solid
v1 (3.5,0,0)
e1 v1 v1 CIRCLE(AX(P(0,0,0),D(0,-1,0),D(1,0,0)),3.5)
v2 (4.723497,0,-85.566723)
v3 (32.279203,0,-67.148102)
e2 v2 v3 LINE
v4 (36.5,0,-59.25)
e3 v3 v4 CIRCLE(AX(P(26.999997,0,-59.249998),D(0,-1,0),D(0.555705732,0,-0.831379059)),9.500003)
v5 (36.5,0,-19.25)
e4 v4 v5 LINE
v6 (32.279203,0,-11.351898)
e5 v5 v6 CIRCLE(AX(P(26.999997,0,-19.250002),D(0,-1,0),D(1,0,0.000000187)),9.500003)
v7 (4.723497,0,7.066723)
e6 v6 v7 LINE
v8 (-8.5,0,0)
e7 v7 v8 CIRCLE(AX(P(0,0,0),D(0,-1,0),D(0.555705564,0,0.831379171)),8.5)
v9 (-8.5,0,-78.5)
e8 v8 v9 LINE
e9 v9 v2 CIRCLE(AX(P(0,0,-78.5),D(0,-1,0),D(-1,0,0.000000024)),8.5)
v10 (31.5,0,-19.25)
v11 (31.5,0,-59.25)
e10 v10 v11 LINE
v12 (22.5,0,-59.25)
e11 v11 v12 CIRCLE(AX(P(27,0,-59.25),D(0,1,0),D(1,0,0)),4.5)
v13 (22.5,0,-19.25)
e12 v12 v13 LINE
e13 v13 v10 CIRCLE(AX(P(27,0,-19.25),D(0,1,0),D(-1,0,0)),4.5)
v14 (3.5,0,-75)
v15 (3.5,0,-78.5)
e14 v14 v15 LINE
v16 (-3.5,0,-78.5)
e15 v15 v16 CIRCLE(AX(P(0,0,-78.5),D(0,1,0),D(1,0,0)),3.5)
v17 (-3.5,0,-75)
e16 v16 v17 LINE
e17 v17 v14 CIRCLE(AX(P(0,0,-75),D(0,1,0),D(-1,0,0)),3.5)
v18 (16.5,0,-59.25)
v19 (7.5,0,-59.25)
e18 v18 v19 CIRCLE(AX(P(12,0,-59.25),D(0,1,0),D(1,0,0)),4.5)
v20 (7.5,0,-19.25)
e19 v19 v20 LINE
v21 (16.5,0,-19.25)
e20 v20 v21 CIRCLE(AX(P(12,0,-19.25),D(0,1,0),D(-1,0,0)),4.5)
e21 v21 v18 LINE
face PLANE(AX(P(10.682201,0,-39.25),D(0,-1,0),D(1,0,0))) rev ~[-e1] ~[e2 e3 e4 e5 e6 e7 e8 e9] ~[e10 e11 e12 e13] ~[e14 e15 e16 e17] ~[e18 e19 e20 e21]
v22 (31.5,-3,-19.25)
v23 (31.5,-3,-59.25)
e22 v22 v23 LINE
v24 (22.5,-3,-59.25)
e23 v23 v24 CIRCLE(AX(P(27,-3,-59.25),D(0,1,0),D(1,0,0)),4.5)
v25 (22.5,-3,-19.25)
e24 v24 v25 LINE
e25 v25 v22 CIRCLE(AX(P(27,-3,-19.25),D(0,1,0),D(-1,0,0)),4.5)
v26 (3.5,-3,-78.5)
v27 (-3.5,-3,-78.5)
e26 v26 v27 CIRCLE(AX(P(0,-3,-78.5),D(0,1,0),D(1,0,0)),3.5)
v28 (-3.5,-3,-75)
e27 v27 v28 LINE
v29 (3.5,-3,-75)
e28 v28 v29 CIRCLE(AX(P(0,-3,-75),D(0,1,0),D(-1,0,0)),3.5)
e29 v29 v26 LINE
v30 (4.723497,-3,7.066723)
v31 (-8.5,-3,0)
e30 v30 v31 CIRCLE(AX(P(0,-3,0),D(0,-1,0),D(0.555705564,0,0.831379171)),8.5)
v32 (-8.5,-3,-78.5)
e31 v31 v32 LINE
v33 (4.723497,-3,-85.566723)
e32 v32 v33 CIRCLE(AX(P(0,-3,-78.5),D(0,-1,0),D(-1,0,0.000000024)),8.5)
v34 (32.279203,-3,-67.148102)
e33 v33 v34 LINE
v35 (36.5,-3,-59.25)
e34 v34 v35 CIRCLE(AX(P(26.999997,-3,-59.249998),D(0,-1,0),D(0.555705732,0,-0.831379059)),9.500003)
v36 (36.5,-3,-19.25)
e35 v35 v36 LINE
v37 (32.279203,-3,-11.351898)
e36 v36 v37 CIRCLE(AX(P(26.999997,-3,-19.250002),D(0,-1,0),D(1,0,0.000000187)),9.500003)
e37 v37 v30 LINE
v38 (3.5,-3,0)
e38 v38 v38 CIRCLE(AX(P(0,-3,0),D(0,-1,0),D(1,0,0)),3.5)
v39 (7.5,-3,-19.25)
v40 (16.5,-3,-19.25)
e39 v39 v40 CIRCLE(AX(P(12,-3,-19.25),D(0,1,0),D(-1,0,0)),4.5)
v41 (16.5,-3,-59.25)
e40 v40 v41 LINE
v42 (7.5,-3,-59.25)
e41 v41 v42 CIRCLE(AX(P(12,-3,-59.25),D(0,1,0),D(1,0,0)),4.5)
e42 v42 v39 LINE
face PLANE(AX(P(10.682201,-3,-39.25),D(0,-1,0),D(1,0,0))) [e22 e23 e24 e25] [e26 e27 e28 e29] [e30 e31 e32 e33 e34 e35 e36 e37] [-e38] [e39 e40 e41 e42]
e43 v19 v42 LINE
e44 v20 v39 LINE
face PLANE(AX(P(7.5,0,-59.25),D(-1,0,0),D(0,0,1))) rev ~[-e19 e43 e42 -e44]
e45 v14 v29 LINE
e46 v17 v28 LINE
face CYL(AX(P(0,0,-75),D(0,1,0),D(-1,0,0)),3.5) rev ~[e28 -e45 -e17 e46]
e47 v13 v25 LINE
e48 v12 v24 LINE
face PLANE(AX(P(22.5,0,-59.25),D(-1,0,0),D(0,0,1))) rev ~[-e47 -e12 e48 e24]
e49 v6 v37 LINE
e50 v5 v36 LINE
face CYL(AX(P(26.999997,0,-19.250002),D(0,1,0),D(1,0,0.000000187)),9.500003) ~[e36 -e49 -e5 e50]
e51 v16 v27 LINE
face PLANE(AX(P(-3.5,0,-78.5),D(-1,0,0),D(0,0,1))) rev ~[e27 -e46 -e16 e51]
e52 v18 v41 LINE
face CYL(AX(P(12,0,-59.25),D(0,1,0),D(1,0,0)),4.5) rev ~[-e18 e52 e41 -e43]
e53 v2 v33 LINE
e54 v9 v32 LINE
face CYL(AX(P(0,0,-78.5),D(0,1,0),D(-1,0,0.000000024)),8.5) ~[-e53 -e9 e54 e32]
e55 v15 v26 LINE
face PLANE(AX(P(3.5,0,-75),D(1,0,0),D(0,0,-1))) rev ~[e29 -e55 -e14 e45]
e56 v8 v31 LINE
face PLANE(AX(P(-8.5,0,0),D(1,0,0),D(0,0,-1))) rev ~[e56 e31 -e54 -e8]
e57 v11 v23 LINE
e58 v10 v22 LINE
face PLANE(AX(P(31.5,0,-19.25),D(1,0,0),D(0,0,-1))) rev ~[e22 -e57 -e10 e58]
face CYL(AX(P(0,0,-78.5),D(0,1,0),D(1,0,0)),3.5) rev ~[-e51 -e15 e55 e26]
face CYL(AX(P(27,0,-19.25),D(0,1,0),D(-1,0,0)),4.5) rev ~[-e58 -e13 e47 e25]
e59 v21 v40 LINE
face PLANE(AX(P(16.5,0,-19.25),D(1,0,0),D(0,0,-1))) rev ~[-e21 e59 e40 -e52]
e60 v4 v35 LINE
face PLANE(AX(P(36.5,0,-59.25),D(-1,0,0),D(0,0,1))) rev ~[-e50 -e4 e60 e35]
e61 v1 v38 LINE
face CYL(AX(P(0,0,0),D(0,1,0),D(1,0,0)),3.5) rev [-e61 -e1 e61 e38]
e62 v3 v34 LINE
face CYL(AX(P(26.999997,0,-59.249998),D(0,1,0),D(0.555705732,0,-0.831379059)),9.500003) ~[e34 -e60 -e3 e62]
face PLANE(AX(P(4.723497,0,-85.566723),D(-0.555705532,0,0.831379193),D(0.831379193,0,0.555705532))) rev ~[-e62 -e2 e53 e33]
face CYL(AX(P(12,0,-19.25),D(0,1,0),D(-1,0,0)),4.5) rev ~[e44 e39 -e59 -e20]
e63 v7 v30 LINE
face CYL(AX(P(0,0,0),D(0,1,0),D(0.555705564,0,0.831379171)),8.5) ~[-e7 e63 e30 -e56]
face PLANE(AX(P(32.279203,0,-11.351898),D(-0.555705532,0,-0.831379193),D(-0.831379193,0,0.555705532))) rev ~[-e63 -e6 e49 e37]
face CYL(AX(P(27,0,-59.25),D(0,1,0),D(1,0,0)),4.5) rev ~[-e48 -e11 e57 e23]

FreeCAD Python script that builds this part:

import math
import FreeCAD as App
import Part
import Sketcher
Q = App.Units.Quantity

doc = App.newDocument("Part")
body = doc.addObject("PartDesign::Body", "Body")

# Sketch on XZ plane
sketch1 = body.newObject("Sketcher::SketchObject", "Sketch")
sketch1.AttachmentSupport = (doc.getObject("XZ_Plane"), [""])
sketch1.MapMode = "FlatFace"
sketch1.addGeometry(Part.LineSegment(App.Vector(32.279203, -11.351898, 0), App.Vector(4.723497, 7.066723, 0)), False)
sketch1.addGeometry(Part.ArcOfCircle(Part.Circle(App.Vector(0, 0, 0), App.Vector(0, 0, 1), 8.5), math.radians(56.240674), math.radians(180.000001)), False)
sketch1.addGeometry(Part.LineSegment(App.Vector(-8.5, 0, 0), App.Vector(-8.5, -78.5, 0)), False)
sketch1.addGeometry(Part.ArcOfCircle(Part.Circle(App.Vector(0, -78.5, 0), App.Vector(0, 0, 1), 8.5), math.radians(179.999999), math.radians(303.759326)), False)
sketch1.addGeometry(Part.LineSegment(App.Vector(4.723497, -85.566723, 0), App.Vector(32.279203, -67.148102, 0)), False)
sketch1.addGeometry(Part.ArcOfCircle(Part.Circle(App.Vector(26.999997, -59.249998, 0), App.Vector(0, 0, 1), 9.500003), math.radians(-56.240662), math.radians(-0.000011)), False)
sketch1.addGeometry(Part.LineSegment(App.Vector(36.5, -59.25, 0), App.Vector(36.5, -19.25, 0)), False)
sketch1.addGeometry(Part.ArcOfCircle(Part.Circle(App.Vector(26.999997, -19.250002, 0), App.Vector(0, 0, 1), 9.500003), math.radians(0.000011), math.radians(56.240662)), False)
sketch1.addGeometry(Part.LineSegment(App.Vector(-3.5, -78.5, 0), App.Vector(-3.5, -75, 0)), False)
sketch1.addGeometry(Part.ArcOfCircle(Part.Circle(App.Vector(0, -75, 0), App.Vector(0, 0, 1), 3.5), math.radians(0), math.radians(180)), False)
sketch1.addGeometry(Part.LineSegment(App.Vector(3.5, -75, 0), App.Vector(3.5, -78.5, 0)), False)
sketch1.addGeometry(Part.ArcOfCircle(Part.Circle(App.Vector(0, -78.5, 0), App.Vector(0, 0, 1), 3.5), math.radians(180), math.radians(360)), False)
sketch1.addGeometry(Part.LineSegment(App.Vector(7.5, -59.25, 0), App.Vector(7.5, -19.25, 0)), False)
sketch1.addGeometry(Part.ArcOfCircle(Part.Circle(App.Vector(12, -19.25, 0), App.Vector(0, 0, 1), 4.5), math.radians(0), math.radians(180)), False)
sketch1.addGeometry(Part.LineSegment(App.Vector(16.5, -19.25, 0), App.Vector(16.5, -59.25, 0)), False)
sketch1.addGeometry(Part.ArcOfCircle(Part.Circle(App.Vector(12, -59.25, 0), App.Vector(0, 0, 1), 4.5), math.radians(180), math.radians(360)), False)
sketch1.addGeometry(Part.Circle(App.Vector(0, 0, 0), App.Vector(0, 0, 1), 3.5), False)
sketch1.addGeometry(Part.LineSegment(App.Vector(22.5, -59.25, 0), App.Vector(22.5, -19.25, 0)), False)
sketch1.addGeometry(Part.ArcOfCircle(Part.Circle(App.Vector(27, -19.25, 0), App.Vector(0, 0, 1), 4.5), math.radians(0), math.radians(180)), False)
sketch1.addGeometry(Part.LineSegment(App.Vector(31.5, -19.25, 0), App.Vector(31.5, -59.25, 0)), False)
sketch1.addGeometry(Part.ArcOfCircle(Part.Circle(App.Vector(27, -59.25, 0), App.Vector(0, 0, 1), 4.5), math.radians(180), math.radians(360)), False)
sketch1.addConstraint(Sketcher.Constraint("Tangent", 0, 2, 1, 1))
sketch1.addConstraint(Sketcher.Constraint("Tangent", 1, 2, 2, 1))
sketch1.addConstraint(Sketcher.Constraint("Tangent", 2, 2, 3, 1))
sketch1.addConstraint(Sketcher.Constraint("Tangent", 3, 2, 4, 1))
sketch1.addConstraint(Sketcher.Constraint("Tangent", 4, 2, 5, 1))
sketch1.addConstraint(Sketcher.Constraint("Tangent", 5, 2, 6, 1))
sketch1.addConstraint(Sketcher.Constraint("Tangent", 6, 2, 7, 1))
sketch1.addConstraint(Sketcher.Constraint("Tangent", 7, 2, 0, 1))
sketch1.addConstraint(Sketcher.Constraint("Tangent", 8, 2, 9, 2))
sketch1.addConstraint(Sketcher.Constraint("Tangent", 9, 1, 10, 1))
sketch1.addConstraint(Sketcher.Constraint("Tangent", 10, 2, 11, 2))
sketch1.addConstraint(Sketcher.Constraint("Tangent", 11, 1, 8, 1))
sketch1.addConstraint(Sketcher.Constraint("Tangent", 12, 2, 13, 2))
sketch1.addConstraint(Sketcher.Constraint("Tangent", 13, 1, 14, 1))
sketch1.addConstraint(Sketcher.Constraint("Tangent", 14, 2, 15, 2))
sketch1.addConstraint(Sketcher.Constraint("Tangent", 15, 1, 12, 1))
sketch1.addConstraint(Sketcher.Constraint("Tangent", 17, 2, 18, 2))
sketch1.addConstraint(Sketcher.Constraint("Tangent", 18, 1, 19, 1))
sketch1.addConstraint(Sketcher.Constraint("Tangent", 19, 2, 20, 2))
sketch1.addConstraint(Sketcher.Constraint("Tangent", 20, 1, 17, 1))
sketch1.addConstraint(Sketcher.Constraint("Vertical", 2))
sketch1.addConstraint(Sketcher.Constraint("Vertical", 6))
sketch1.addConstraint(Sketcher.Constraint("Vertical", 8))
sketch1.addConstraint(Sketcher.Constraint("Vertical", 10))
sketch1.addConstraint(Sketcher.Constraint("Vertical", 12))
sketch1.addConstraint(Sketcher.Constraint("Vertical", 14))
sketch1.addConstraint(Sketcher.Constraint("Vertical", 17))
sketch1.addConstraint(Sketcher.Constraint("Vertical", 19))
sketch1.addConstraint(Sketcher.Constraint("Coincident", 1, 3, -1, 1))
sketch1.addConstraint(Sketcher.Constraint("Coincident", 16, 3, -1, 1))
sketch1.addConstraint(Sketcher.Constraint("Coincident", 11, 3, 3, 3))
sketch1.addConstraint(Sketcher.Constraint("Coincident", 18, 3, 7, 3))
sketch1.addConstraint(Sketcher.Constraint("Coincident", 20, 3, 5, 3))
sketch1.addConstraint(Sketcher.Constraint("Equal", 1, 3))
sketch1.addConstraint(Sketcher.Constraint("Equal", 11, 16))
sketch1.addConstraint(Sketcher.Constraint("Equal", 15, 18))
sketch1.addConstraint(Sketcher.Constraint("Horizontal", 7, 3, 13, 3))
sketch1.addConstraint(Sketcher.Constraint("Horizontal", 5, 3, 15, 3))
sketch1.addConstraint(Sketcher.Constraint("Vertical", 0, 2, 3, 2))
sketch1.addConstraint(Sketcher.Constraint("Diameter", 16, Q("7 mm")))
sketch1.addConstraint(Sketcher.Constraint("Radius", 1, Q("8.5 mm")))
sketch1.addConstraint(Sketcher.Constraint("Radius", 13, Q("4.5 mm")))
sketch1.addConstraint(Sketcher.Constraint("DistanceY", 6, 1, 6, 2, Q("40 mm")))
sketch1.addConstraint(Sketcher.Constraint("DistanceY", 2, 2, 2, 1, Q("78.5 mm")))
sketch1.addConstraint(Sketcher.Constraint("DistanceY", 8, 1, 8, 2, Q("3.5 mm")))
sketch1.addConstraint(Sketcher.Constraint("DistanceX", -1, 1, 13, 3, Q("12 mm")))
sketch1.addConstraint(Sketcher.Constraint("DistanceX", -1, 1, 18, 3, Q("27 mm")))
sketch1.addConstraint(Sketcher.Constraint("DistanceX", 14, 2, 5, 2, Q("20 mm")))
pad1 = body.newObject("PartDesign::Pad", "Pad")
pad1.Profile = sketch1
pad1.Length = 3

doc.recompute()
